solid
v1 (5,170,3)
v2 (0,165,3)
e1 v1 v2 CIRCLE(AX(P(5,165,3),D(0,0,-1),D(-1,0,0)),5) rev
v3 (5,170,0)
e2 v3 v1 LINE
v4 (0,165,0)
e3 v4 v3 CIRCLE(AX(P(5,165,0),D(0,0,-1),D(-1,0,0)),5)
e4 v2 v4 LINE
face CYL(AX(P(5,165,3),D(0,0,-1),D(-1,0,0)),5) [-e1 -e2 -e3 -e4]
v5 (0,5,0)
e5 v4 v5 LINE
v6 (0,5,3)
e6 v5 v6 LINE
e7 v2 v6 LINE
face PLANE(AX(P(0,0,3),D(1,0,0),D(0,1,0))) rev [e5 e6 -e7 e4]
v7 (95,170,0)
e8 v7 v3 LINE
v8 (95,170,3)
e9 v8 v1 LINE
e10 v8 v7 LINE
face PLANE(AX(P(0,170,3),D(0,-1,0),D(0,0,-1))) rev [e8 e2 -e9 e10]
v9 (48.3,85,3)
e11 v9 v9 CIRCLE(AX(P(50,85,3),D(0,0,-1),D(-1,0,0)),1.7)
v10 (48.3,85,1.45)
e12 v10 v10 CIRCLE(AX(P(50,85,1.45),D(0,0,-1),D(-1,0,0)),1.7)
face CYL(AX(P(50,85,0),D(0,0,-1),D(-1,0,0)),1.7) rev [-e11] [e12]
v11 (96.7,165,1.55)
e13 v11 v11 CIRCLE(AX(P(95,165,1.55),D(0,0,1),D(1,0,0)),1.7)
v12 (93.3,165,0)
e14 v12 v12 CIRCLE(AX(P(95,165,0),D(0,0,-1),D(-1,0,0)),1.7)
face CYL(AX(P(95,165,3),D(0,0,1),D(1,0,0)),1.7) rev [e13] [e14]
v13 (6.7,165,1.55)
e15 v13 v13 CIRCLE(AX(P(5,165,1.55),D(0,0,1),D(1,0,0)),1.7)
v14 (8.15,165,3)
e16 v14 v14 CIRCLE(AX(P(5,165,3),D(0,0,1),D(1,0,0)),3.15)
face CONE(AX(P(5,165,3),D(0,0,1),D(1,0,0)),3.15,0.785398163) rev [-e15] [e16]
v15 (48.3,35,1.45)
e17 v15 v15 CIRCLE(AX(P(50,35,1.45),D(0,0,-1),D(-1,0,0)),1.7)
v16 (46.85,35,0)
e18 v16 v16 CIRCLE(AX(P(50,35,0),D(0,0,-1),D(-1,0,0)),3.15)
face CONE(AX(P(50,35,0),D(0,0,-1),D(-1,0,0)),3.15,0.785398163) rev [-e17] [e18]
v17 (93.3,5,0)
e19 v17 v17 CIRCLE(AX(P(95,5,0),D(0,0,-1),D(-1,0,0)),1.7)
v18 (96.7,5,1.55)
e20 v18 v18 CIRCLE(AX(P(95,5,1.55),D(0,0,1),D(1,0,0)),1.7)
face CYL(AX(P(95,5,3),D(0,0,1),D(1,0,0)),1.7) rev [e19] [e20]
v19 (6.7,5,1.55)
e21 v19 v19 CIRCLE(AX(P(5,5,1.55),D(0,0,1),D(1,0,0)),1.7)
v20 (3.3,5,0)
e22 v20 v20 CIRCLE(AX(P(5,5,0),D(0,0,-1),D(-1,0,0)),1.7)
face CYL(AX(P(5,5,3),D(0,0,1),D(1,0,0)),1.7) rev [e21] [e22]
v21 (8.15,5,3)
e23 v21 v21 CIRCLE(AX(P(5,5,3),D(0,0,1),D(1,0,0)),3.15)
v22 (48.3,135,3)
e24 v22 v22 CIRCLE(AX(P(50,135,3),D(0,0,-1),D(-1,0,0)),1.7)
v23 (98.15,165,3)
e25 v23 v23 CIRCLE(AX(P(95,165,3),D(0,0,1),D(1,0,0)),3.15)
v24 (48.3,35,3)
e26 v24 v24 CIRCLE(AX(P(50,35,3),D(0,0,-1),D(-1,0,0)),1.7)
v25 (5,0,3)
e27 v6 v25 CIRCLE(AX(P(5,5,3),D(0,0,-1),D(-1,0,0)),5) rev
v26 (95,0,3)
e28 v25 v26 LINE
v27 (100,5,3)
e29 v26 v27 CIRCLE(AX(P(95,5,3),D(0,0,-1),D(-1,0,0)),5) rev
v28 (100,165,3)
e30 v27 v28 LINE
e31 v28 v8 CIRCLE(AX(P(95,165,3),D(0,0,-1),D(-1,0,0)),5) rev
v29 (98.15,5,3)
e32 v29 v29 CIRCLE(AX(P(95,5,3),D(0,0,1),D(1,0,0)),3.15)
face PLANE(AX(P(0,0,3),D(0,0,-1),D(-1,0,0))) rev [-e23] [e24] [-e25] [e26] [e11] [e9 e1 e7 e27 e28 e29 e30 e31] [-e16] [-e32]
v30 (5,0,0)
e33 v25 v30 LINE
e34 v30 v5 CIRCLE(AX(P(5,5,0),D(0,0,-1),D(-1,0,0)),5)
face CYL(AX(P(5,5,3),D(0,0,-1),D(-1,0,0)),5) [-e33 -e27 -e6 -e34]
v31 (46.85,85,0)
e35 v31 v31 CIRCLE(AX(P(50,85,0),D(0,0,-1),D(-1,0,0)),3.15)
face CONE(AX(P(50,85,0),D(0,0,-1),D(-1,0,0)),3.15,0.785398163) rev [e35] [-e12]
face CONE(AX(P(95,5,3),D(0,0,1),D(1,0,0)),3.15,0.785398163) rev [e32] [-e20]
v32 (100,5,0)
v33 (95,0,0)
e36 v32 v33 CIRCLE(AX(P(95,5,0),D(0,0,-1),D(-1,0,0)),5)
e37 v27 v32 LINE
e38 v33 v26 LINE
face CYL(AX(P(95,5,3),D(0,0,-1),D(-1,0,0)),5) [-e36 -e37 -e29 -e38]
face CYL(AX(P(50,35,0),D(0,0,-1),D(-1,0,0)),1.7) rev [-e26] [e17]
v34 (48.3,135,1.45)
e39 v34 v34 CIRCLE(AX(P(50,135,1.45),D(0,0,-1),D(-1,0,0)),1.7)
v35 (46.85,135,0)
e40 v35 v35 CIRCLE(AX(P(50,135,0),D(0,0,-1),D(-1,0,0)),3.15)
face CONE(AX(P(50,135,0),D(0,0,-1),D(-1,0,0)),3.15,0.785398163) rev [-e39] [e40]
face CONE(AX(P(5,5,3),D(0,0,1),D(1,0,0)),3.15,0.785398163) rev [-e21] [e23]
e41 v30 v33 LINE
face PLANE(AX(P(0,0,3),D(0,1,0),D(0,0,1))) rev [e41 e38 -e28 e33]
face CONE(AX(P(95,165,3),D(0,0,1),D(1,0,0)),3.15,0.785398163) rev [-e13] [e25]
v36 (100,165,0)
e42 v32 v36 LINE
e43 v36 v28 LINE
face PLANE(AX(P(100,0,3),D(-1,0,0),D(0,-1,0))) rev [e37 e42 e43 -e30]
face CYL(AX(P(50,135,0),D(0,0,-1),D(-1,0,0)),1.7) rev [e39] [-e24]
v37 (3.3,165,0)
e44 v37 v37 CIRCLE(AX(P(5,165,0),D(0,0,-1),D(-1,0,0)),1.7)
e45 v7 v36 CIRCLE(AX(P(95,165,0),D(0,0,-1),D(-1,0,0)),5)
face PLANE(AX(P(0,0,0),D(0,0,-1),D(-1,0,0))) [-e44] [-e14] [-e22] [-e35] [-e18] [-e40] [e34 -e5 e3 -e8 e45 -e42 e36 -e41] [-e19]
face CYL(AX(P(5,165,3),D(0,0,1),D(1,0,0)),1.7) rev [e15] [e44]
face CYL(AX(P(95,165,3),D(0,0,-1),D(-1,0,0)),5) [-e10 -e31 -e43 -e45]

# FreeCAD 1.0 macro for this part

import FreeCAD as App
import Part
import Sketcher

V = App.Vector
Q = App.Units.Quantity


def edges_at(feature, points):
    """Names of the edges that pass closest to the given points."""
    edges = feature.Shape.Edges
    near = lambda p: min(range(len(edges)), key=lambda i: edges[i].distToShape(Part.Vertex(*p))[0])
    return sorted({f"Edge{near(p) + 1}" for p in points})


def add_polygon(sketch, points):
    """Adds a closed chain of lines whose ends are joined by coincident constraints."""
    first, n = sketch.GeometryCount, len(points)
    for a, b in zip(points, points[1:] + points[:1]):
        sketch.addGeometry(Part.LineSegment(App.Vector(*a, 0), App.Vector(*b, 0)), False)
    for i in range(n):
        sketch.addConstraint(Sketcher.Constraint("Coincident", first + i, 2, first + (i + 1) % n, 1))

doc = App.newDocument("Part")
params = doc.addObject("Spreadsheet::Sheet", "Params")
for row, (alias, value) in enumerate([
    ("sketch1_width", "100 mm"),
    ("sketch1_height", "170 mm"),
    ("pad1_length", "3 mm"),
    ("sketch2_diameter", "3.4 mm"),
    ("hole_diameter", "3.4 mm"),
    ("hole_depth", "7.5 mm"),
    ("hole_csink_diameter", "6.3 mm"),
    ("fillet_radius", "5 mm"),
    ("sketch3_diameter", "3.4 mm"),
    ("hole2_diameter", "3.4 mm"),
    ("hole2_depth", "7.5 mm"),
    ("hole2_csink_diameter", "6.3 mm"),
], start=1):
    params.set(f"A{row}", alias)
    params.set(f"B{row}", "=" + value)
    params.setAlias(f"B{row}", alias)

body = doc.addObject("PartDesign::Body", "Body")

# Sketch on XY plane
sketch1 = doc.addObject("Sketcher::SketchObject", "Sketch")
body.addObject(sketch1)
sketch1.AttachmentSupport = (doc.XY_Plane, [""])
sketch1.MapMode = "FlatFace"
add_polygon(sketch1, [(0, 170), (0, 0), (100, 0), (100, 170)])  # lines 0-3
sketch1.addConstraint([
    Sketcher.Constraint("Vertical", 0),
    Sketcher.Constraint("Horizontal", 1),
    Sketcher.Constraint("Vertical", 2),
    Sketcher.Constraint("Horizontal", 3),
    Sketcher.Constraint("Coincident", 0, 2, -1, 1),
    Sketcher.Constraint("DistanceX", 1, 1, 1, 2, Q("100 mm")),
    Sketcher.Constraint("DistanceY", 0, 2, 0, 1, Q("170 mm")),
])
sketch1.setExpression("Constraints[9]", "Params.sketch1_width")
sketch1.setExpression("Constraints[10]", "Params.sketch1_height")
pad1 = doc.addObject("PartDesign::Pad", "Pad")
body.addObject(pad1)
pad1.Profile = sketch1
pad1.setExpression("Length", "Params.pad1_length")

# Sketch on XY plane
sketch2 = doc.addObject("Sketcher::SketchObject", "Sketch001")
body.addObject(sketch2)
sketch2.AttachmentSupport = (doc.XY_Plane, [""])
sketch2.MapMode = "FlatFace"
sketch2.AttachmentOffset = App.Placement(V(0, 0, 3), App.Rotation())
sketch2.addGeometry([
    Part.Circle(V(5, 165, 0), V(0, 0, 1), 1.7),
    Part.Circle(V(95, 165, 0), V(0, 0, 1), 1.7),
    Part.Circle(V(95, 5, 0), V(0, 0, 1), 1.7),
    Part.Circle(V(5, 5, 0), V(0, 0, 1), 1.7),
], False)
sketch2.addConstraint([
    Sketcher.Constraint("Equal", 0, 1),
    Sketcher.Constraint("Equal", 1, 2),
    Sketcher.Constraint("Equal", 2, 3),
    Sketcher.Constraint("Horizontal", 0, 3, 1, 3),
    Sketcher.Constraint("Horizontal", 2, 3, 3, 3),
    Sketcher.Constraint("Vertical", 1, 3, 2, 3),
    Sketcher.Constraint("Vertical", 0, 3, 3, 3),
    Sketcher.Constraint("Diameter", 0, Q("3.4 mm")),
    Sketcher.Constraint("DistanceX", -1, 1, 0, 3, Q("5 mm")),
    Sketcher.Constraint("DistanceY", -1, 1, 0, 3, Q("165 mm")),
    Sketcher.Constraint("DistanceX", -1, 1, 1, 3, Q("95 mm")),
    Sketcher.Constraint("DistanceY", -1, 1, 2, 3, Q("5 mm")),
])
sketch2.setExpression("Constraints[7]", "Params.sketch2_diameter")
doc.recompute()
hole = doc.addObject("PartDesign::Hole", "Hole")
body.addObject(hole)
hole.Profile = sketch2
hole.ThreadType = "None"
hole.setExpression("Diameter", "Params.hole_diameter")
hole.DepthType = "Dimension"
hole.setExpression("Depth", "Params.hole_depth")
hole.DrillPoint = "Angled"
hole.DrillPointAngle = 118
hole.HoleCutType = "Countersink"
hole.setExpression("HoleCutDiameter", "Params.hole_csink_diameter")
hole.HoleCutCountersinkAngle = 90
doc.recompute()

fillet = doc.addObject("PartDesign::Fillet", "Fillet")
body.addObject(fillet)
fillet.Base = (hole, edges_at(hole, [
    (0, 170, 1.5),
    (100, 170, 1.5),
    (100, 0, 1.5),
    (0, 0, 1.5),
]))
fillet.setExpression("Radius", "Params.fillet_radius")

# Sketch on XY plane
sketch3 = doc.addObject("Sketcher::SketchObject", "Sketch002")
body.addObject(sketch3)
sketch3.AttachmentSupport = (doc.XY_Plane, [""])
sketch3.MapMode = "FlatFace"
sketch3.addGeometry([
    Part.Circle(V(50, 135, 0), V(0, 0, 1), 1.7),
    Part.Circle(V(50, 85, 0), V(0, 0, 1), 1.7),
    Part.Circle(V(50, 35, 0), V(0, 0, 1), 1.7),
], False)
sketch3.addConstraint([
    Sketcher.Constraint("Equal", 0, 1),
    Sketcher.Constraint("Equal", 1, 2),
    Sketcher.Constraint("Vertical", 0, 3, 1, 3),
    Sketcher.Constraint("Vertical", 1, 3, 2, 3),
    Sketcher.Constraint("Diameter", 0, Q("3.4 mm")),
    Sketcher.Constraint("DistanceX", -1, 1, 0, 3, Q("50 mm")),
    Sketcher.Constraint("DistanceY", -1, 1, 0, 3, Q("135 mm")),
    Sketcher.Constraint("DistanceY", -1, 1, 1, 3, Q("85 mm")),
    Sketcher.Constraint("DistanceY", -1, 1, 2, 3, Q("35 mm")),
])
sketch3.setExpression("Constraints[4]", "Params.sketch3_diameter")
doc.recompute()
hole2 = doc.addObject("PartDesign::Hole", "Hole001")
body.addObject(hole2)
hole2.Profile = sketch3
hole2.ThreadType = "None"
hole2.setExpression("Diameter", "Params.hole2_diameter")
hole2.DepthType = "Dimension"
hole2.setExpression("Depth", "Params.hole2_depth")
hole2.DrillPoint = "Angled"
hole2.DrillPointAngle = 118
hole2.HoleCutType = "Countersink"
hole2.setExpression("HoleCutDiameter", "Params.hole2_csink_diameter")
hole2.HoleCutCountersinkAngle = 90
hole2.Reversed = True

doc.recompute()
